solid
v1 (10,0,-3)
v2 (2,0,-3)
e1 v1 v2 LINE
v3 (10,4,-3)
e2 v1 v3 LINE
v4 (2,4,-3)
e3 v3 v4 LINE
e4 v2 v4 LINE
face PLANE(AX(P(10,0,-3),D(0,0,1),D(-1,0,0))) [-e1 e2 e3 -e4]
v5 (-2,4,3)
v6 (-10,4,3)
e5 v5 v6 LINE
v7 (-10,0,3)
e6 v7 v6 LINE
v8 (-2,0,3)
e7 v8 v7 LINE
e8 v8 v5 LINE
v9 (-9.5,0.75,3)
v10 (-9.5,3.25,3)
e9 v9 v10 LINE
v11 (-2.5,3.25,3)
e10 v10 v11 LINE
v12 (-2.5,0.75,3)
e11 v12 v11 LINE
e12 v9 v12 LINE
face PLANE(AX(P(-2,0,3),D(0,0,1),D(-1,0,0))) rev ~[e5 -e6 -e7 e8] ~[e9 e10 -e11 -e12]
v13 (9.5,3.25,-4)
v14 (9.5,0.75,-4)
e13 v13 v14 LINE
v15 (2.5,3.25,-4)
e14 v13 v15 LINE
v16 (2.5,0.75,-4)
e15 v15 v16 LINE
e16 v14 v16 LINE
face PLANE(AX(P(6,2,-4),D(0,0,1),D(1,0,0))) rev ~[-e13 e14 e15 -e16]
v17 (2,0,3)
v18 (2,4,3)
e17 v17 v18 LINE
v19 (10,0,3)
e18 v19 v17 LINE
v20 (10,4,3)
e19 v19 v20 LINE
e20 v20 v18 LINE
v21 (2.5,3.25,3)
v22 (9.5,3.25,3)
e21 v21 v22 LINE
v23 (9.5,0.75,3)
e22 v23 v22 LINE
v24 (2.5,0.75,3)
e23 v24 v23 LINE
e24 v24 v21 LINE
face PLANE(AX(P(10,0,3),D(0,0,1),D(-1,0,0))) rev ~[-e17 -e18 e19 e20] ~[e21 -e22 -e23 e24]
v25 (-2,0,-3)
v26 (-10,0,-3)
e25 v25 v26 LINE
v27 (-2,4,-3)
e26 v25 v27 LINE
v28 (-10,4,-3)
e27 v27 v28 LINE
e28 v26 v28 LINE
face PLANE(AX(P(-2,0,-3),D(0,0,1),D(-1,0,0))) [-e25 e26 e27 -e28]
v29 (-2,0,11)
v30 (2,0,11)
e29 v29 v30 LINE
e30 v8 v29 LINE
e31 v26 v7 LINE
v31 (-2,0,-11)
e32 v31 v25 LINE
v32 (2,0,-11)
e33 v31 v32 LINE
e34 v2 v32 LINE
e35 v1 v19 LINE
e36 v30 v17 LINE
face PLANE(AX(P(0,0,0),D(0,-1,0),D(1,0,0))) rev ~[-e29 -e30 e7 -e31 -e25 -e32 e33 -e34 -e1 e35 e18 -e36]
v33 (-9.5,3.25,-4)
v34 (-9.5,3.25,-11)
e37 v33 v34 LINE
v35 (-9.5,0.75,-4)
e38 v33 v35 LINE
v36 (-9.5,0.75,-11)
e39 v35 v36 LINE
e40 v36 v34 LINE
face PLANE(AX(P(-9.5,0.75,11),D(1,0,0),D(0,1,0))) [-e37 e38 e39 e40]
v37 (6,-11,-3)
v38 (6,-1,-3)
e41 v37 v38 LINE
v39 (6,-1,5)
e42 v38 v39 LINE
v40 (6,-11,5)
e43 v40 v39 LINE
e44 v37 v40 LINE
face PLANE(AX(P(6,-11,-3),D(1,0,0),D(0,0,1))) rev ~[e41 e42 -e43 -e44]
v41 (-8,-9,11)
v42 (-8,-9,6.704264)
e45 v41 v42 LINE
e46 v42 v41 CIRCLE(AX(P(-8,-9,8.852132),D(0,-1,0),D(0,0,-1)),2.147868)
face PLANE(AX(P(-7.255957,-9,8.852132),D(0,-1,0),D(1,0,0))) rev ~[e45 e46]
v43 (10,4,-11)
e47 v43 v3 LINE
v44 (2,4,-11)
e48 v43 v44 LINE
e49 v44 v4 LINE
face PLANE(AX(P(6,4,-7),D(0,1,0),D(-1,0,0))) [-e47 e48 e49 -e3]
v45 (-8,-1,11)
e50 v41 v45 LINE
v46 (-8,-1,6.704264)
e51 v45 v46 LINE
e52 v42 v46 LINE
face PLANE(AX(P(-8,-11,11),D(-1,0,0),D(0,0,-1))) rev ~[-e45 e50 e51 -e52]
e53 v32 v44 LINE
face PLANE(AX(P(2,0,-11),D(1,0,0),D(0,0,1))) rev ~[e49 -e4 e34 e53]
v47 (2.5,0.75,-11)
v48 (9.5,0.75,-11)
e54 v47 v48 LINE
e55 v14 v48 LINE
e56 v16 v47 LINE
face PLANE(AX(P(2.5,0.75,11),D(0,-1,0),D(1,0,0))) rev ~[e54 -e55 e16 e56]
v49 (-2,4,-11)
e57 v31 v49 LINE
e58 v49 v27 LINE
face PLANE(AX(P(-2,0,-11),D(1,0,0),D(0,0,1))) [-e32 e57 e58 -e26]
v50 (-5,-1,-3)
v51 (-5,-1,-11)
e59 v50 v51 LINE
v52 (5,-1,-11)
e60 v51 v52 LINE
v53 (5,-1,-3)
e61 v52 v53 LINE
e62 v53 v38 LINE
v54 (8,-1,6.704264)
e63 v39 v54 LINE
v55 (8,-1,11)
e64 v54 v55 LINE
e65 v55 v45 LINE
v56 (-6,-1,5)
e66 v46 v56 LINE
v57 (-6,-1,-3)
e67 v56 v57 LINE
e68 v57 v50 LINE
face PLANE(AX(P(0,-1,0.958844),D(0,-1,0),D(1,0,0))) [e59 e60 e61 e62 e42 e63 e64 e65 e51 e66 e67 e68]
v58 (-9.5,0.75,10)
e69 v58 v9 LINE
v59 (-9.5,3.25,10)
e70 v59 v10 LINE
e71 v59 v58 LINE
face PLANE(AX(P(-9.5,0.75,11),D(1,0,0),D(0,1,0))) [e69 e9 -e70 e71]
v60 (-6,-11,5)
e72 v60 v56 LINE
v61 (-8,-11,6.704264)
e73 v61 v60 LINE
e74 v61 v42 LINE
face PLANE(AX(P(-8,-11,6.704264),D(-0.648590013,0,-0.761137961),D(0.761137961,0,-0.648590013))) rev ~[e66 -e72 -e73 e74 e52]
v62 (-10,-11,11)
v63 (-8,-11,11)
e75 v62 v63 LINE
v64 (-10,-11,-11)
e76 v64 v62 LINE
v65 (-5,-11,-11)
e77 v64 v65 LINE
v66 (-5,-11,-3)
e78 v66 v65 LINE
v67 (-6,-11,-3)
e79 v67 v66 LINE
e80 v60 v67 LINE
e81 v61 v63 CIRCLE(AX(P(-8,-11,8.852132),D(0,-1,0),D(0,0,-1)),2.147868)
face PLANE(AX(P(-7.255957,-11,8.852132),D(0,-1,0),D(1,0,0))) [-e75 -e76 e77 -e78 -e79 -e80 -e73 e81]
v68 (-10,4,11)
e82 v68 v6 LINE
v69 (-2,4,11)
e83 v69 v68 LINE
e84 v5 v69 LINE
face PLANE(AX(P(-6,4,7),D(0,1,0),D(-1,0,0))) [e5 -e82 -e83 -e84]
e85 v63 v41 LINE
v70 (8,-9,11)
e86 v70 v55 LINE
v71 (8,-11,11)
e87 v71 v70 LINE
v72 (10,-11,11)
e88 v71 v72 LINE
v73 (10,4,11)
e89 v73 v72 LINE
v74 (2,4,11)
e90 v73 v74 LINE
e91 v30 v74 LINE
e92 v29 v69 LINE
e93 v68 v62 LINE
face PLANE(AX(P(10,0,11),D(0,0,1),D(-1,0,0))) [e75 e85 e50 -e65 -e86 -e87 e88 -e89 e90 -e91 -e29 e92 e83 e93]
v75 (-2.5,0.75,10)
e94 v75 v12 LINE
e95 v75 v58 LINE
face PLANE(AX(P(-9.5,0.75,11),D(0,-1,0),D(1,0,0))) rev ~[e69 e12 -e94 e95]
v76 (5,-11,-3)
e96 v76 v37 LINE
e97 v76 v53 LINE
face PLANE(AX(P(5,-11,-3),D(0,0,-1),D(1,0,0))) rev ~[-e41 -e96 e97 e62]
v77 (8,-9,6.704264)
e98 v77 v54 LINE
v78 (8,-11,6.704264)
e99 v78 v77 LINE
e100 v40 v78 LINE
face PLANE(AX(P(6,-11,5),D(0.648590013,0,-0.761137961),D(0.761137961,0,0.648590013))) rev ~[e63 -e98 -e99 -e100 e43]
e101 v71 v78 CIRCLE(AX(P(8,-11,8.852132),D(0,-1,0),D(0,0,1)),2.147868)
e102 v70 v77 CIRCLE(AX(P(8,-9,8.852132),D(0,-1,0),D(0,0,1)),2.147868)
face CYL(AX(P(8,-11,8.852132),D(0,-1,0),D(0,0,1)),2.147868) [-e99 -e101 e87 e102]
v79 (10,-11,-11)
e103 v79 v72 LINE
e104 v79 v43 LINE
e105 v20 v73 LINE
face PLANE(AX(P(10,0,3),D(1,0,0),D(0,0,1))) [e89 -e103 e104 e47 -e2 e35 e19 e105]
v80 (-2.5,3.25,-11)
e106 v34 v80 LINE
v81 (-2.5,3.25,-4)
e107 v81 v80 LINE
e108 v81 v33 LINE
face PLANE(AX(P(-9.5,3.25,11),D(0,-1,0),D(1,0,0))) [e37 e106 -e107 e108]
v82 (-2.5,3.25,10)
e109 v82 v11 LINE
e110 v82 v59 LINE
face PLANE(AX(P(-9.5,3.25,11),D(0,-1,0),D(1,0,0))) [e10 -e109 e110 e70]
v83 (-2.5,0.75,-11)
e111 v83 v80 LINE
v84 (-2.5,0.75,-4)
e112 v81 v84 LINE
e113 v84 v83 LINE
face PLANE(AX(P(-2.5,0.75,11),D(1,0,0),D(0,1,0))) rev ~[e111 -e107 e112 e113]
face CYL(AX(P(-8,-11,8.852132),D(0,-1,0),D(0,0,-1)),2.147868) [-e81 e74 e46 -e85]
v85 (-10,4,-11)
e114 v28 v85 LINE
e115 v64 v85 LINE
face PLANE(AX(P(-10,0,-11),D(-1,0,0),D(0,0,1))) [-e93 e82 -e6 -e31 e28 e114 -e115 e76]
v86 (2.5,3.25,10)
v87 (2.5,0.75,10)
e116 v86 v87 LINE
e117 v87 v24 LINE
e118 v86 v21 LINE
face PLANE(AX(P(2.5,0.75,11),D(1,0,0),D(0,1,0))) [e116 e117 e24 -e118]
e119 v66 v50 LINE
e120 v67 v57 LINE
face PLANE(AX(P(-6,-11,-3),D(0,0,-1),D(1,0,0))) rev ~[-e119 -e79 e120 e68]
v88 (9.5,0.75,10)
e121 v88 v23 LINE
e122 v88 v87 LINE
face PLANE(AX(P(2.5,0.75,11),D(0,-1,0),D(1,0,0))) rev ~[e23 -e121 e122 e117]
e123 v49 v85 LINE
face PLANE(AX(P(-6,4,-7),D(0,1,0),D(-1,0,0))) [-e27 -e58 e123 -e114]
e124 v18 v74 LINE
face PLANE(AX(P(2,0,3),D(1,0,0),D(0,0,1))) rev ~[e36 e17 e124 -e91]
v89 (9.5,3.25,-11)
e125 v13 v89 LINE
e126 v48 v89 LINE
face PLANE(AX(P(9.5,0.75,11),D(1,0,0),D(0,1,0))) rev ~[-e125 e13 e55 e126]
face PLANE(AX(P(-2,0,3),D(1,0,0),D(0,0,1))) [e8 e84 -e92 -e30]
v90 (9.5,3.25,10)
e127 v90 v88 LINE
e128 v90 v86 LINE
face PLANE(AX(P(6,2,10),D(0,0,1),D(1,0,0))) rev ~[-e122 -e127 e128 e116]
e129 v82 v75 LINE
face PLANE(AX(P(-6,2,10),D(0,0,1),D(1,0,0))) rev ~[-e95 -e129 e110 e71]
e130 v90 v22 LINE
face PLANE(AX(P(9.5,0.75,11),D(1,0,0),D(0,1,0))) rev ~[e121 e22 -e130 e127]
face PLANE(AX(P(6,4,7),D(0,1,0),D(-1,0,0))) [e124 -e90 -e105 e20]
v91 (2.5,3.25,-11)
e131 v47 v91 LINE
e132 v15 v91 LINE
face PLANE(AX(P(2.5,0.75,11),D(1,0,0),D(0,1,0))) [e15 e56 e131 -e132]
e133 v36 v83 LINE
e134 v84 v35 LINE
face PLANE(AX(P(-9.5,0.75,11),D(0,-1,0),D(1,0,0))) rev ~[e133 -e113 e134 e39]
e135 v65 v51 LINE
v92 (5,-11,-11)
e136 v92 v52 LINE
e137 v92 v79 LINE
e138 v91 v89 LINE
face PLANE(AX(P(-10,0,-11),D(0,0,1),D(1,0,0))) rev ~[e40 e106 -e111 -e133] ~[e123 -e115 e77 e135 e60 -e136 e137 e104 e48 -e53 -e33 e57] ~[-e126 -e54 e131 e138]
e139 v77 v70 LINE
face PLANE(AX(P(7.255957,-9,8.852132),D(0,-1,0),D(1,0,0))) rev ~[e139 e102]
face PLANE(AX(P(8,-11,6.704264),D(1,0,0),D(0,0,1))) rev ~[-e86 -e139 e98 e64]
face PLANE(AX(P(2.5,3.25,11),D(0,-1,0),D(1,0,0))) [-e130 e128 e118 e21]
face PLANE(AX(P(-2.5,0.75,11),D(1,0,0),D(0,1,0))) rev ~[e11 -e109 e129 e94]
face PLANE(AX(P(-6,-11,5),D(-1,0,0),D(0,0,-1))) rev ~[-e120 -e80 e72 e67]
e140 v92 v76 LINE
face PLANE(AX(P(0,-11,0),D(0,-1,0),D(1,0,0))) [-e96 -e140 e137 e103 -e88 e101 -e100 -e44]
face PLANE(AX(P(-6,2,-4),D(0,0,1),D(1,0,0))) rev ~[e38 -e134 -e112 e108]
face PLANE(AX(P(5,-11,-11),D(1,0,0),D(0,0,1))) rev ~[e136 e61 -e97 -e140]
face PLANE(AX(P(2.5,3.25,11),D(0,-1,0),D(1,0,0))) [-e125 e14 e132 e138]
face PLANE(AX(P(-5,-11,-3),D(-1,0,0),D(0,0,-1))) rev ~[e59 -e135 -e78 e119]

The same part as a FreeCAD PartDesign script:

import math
import FreeCAD as App
import Part
import Sketcher

V = App.Vector


def add_polygon(sketch, points):
    """Adds a closed chain of lines whose ends are joined by coincident constraints."""
    first, n = sketch.GeometryCount, len(points)
    for a, b in zip(points, points[1:] + points[:1]):
        sketch.addGeometry(Part.LineSegment(App.Vector(*a, 0), App.Vector(*b, 0)), False)
    for i in range(n):
        sketch.addConstraint(Sketcher.Constraint("Coincident", first + i, 2, first + (i + 1) % n, 1))

doc = App.newDocument("Part")
body = doc.addObject("PartDesign::Body", "Body")

# Sketch on XZ plane
sketch1 = body.newObject("Sketcher::SketchObject", "Sketch")
sketch1.AttachmentSupport = (doc.getObject("XZ_Plane"), [""])
sketch1.MapMode = "FlatFace"
add_polygon(sketch1, [(-10, 11), (-10, -11), (10, -11), (10, 11)])  # lines 0-3
sketch1.addConstraint(Sketcher.Constraint("Vertical", 0))
sketch1.addConstraint(Sketcher.Constraint("Horizontal", 1))
sketch1.addConstraint(Sketcher.Constraint("Vertical", 2))
sketch1.addConstraint(Sketcher.Constraint("Horizontal", 3))
sketch1.addConstraint(Sketcher.Constraint("Symmetric", 0, 2, 2, 2, -1, 1))
sketch1.addConstraint(Sketcher.Constraint("DistanceX", 1, 1, 1, 2, 20.0))
sketch1.addConstraint(Sketcher.Constraint("DistanceY", 0, 2, 0, 1, 22.0))
pad1 = body.newObject("PartDesign::Pad", "Pad")
pad1.Profile = sketch1
pad1.Length = 11

# Sketch on XZ plane
sketch2 = body.newObject("Sketcher::SketchObject", "Sketch001")
sketch2.AttachmentSupport = (doc.getObject("XZ_Plane"), [""])
sketch2.MapMode = "FlatFace"
sketch2.AttachmentOffset = App.Placement(V(0, 0, 11), App.Rotation())
add_polygon(sketch2, [(8, 6.704264), (8, 11), (-8, 11), (-8, 6.704264), (-6, 5), (-6, -3), (-5, -3), (-5, -11), (5, -11), (5, -3), (6, -3), (6, 5)])  # lines 0-11
sketch2.addConstraint(Sketcher.Constraint("Vertical", 0))
sketch2.addConstraint(Sketcher.Constraint("Horizontal", 1))
sketch2.addConstraint(Sketcher.Constraint("Vertical", 2))
sketch2.addConstraint(Sketcher.Constraint("Vertical", 4))
sketch2.addConstraint(Sketcher.Constraint("Horizontal", 5))
sketch2.addConstraint(Sketcher.Constraint("Vertical", 6))
sketch2.addConstraint(Sketcher.Constraint("Horizontal", 7))
sketch2.addConstraint(Sketcher.Constraint("Vertical", 8))
sketch2.addConstraint(Sketcher.Constraint("Horizontal", 9))
sketch2.addConstraint(Sketcher.Constraint("Vertical", 10))
sketch2.addConstraint(Sketcher.Constraint("Symmetric", 5, 2, 8, 2, -2))
sketch2.addConstraint(Sketcher.Constraint("Symmetric", 3, 2, 10, 2, -2))
sketch2.addConstraint(Sketcher.Constraint("Symmetric", 2, 2, 11, 2, -2))
sketch2.addConstraint(Sketcher.Constraint("Equal", 4, 6))
sketch2.addConstraint(Sketcher.Constraint("DistanceX", 1, 2, 1, 1, 16.0))
sketch2.addConstraint(Sketcher.Constraint("DistanceX", 5, 1, 5, 2, 1.0))
sketch2.addConstraint(Sketcher.Constraint("DistanceX", 7, 1, 7, 2, 10.0))
sketch2.addConstraint(Sketcher.Constraint("DistanceY", 4, 2, 4, 1, 8.0))
sketch2.addConstraint(Sketcher.Constraint("DistanceY", -1, 1, 0, 2, 11.0))
sketch2.addConstraint(Sketcher.Constraint("DistanceY", -1, 1, 3, 2, 5.0))
sketch2.addConstraint(Sketcher.Constraint("DistanceY", 0, 1, 0, 2, 4.295736))
pocket1 = body.newObject("PartDesign::Pocket", "Pocket")
pocket1.Profile = sketch2
pocket1.Length = 10

# Sketch on XZ plane
sketch3 = body.newObject("Sketcher::SketchObject", "Sketch002")
sketch3.AttachmentSupport = (doc.getObject("XZ_Plane"), [""])
sketch3.MapMode = "FlatFace"
sketch3.AttachmentOffset = App.Placement(V(0, 0, 11), App.Rotation())
sketch3.addGeometry(Part.LineSegment(V(-8, 11, 0), V(-8, 6.704264, 0)), False)
sketch3.addGeometry(Part.ArcOfCircle(Part.Circle(V(-8, 8.852132, 0), V(0, 0, 1), 2.147868), math.radians(-90), math.radians(90)), False)
sketch3.addGeometry(Part.ArcOfCircle(Part.Circle(V(8, 8.852132, 0), V(0, 0, 1), 2.147868), math.radians(90), math.radians(270)), False)
sketch3.addGeometry(Part.LineSegment(V(8, 6.704264, 0), V(8, 11, 0)), False)
sketch3.addConstraint(Sketcher.Constraint("Coincident", 0, 1, 1, 2))
sketch3.addConstraint(Sketcher.Constraint("Coincident", 1, 1, 0, 2))
sketch3.addConstraint(Sketcher.Constraint("Coincident", 2, 1, 3, 2))
sketch3.addConstraint(Sketcher.Constraint("Coincident", 3, 1, 2, 2))
sketch3.addConstraint(Sketcher.Constraint("Vertical", 0))
sketch3.addConstraint(Sketcher.Constraint("Vertical", 3))
sketch3.addConstraint(Sketcher.Constraint("Equal", 1, 2))
sketch3.addConstraint(Sketcher.Constraint("Symmetric", 1, 3, 2, 3, -2))
sketch3.addConstraint(Sketcher.Constraint("Vertical", 1, 3, 0, 1))
sketch3.addConstraint(Sketcher.Constraint("DistanceX", 1, 3, -1, 1, 8.0))
sketch3.addConstraint(Sketcher.Constraint("DistanceY", -1, 1, 0, 1, 11.0))
sketch3.addConstraint(Sketcher.Constraint("DistanceX", -1, 1, 2, 1, 8.0))
sketch3.addConstraint(Sketcher.Constraint("Radius", 1, 2.147868))
pad2 = body.newObject("PartDesign::Pad", "Pad001")
pad2.Profile = sketch3
pad2.Length = 2
pad2.Reversed = True

# Sketch on XZ plane
sketch4 = body.newObject("Sketcher::SketchObject", "Sketch003")
sketch4.AttachmentSupport = (doc.getObject("XZ_Plane"), [""])
sketch4.MapMode = "FlatFace"
add_polygon(sketch4, [(10, 11), (10, 3), (2, 3), (2, 11)])  # lines 0-3
add_polygon(sketch4, [(-2, 11), (-2, 3), (-10, 3), (-10, 11)])  # lines 4-7
add_polygon(sketch4, [(10, -3), (10, -11), (2, -11), (2, -3)])  # lines 8-11
add_polygon(sketch4, [(-2, -3), (-2, -11), (-10, -11), (-10, -3)])  # lines 12-15
sketch4.addConstraint(Sketcher.Constraint("Vertical", 0))
sketch4.addConstraint(Sketcher.Constraint("Horizontal", 1))
sketch4.addConstraint(Sketcher.Constraint("Vertical", 2))
sketch4.addConstraint(Sketcher.Constraint("Horizontal", 3))
sketch4.addConstraint(Sketcher.Constraint("Vertical", 4))
sketch4.addConstraint(Sketcher.Constraint("Horizontal", 5))
sketch4.addConstraint(Sketcher.Constraint("Vertical", 6))
sketch4.addConstraint(Sketcher.Constraint("Horizontal", 7))
sketch4.addConstraint(Sketcher.Constraint("Vertical", 8))
sketch4.addConstraint(Sketcher.Constraint("Horizontal", 9))
sketch4.addConstraint(Sketcher.Constraint("Vertical", 10))
sketch4.addConstraint(Sketcher.Constraint("Horizontal", 11))
sketch4.addConstraint(Sketcher.Constraint("Vertical", 12))
sketch4.addConstraint(Sketcher.Constraint("Horizontal", 13))
sketch4.addConstraint(Sketcher.Constraint("Vertical", 14))
sketch4.addConstraint(Sketcher.Constraint("Horizontal", 15))
sketch4.addConstraint(Sketcher.Constraint("Symmetric", 6, 2, 8, 2, -1, 1))
sketch4.addConstraint(Sketcher.Constraint("Symmetric", 4, 2, 10, 2, -1, 1))
sketch4.addConstraint(Sketcher.Constraint("Symmetric", 2, 2, 12, 2, -1, 1))
sketch4.addConstraint(Sketcher.Constraint("Symmetric", 0, 2, 14, 2, -1, 1))
sketch4.addConstraint(Sketcher.Constraint("Symmetric", 1, 2, 4, 2, -2))
sketch4.addConstraint(Sketcher.Constraint("Symmetric", 3, 2, 6, 2, -2))
sketch4.addConstraint(Sketcher.Constraint("Equal", 15, 0))
sketch4.addConstraint(Sketcher.Constraint("DistanceX", 1, 2, 1, 1, 8.0))
sketch4.addConstraint(Sketcher.Constraint("DistanceX", -1, 1, 0, 2, 10.0))
sketch4.addConstraint(Sketcher.Constraint("DistanceY", -1, 1, 0, 2, 3.0))
pad3 = body.newObject("PartDesign::Pad", "Pad002")
pad3.Profile = sketch4
pad3.Length = 4
pad3.Reversed = True

# Sketch on XY plane
sketch5 = body.newObject("Sketcher::SketchObject", "Sketch004")
sketch5.AttachmentSupport = (doc.getObject("XY_Plane"), [""])
sketch5.MapMode = "FlatFace"
sketch5.AttachmentOffset = App.Placement(V(0, 0, 11), App.Rotation())
add_polygon(sketch5, [(-9.5, 3.25), (-9.5, 0.75), (-2.5, 0.75), (-2.5, 3.25)])  # lines 0-3
add_polygon(sketch5, [(2.5, 3.25), (2.5, 0.75), (9.5, 0.75), (9.5, 3.25)])  # lines 4-7
sketch5.addConstraint(Sketcher.Constraint("Vertical", 0))
sketch5.addConstraint(Sketcher.Constraint("Horizontal", 1))
sketch5.addConstraint(Sketcher.Constraint("Vertical", 2))
sketch5.addConstraint(Sketcher.Constraint("Horizontal", 3))
sketch5.addConstraint(Sketcher.Constraint("Vertical", 4))
sketch5.addConstraint(Sketcher.Constraint("Horizontal", 5))
sketch5.addConstraint(Sketcher.Constraint("Vertical", 6))
sketch5.addConstraint(Sketcher.Constraint("Horizontal", 7))
sketch5.addConstraint(Sketcher.Constraint("Symmetric", 1, 2, 4, 2, -2))
sketch5.addConstraint(Sketcher.Constraint("Symmetric", 3, 2, 6, 2, -2))
sketch5.addConstraint(Sketcher.Constraint("DistanceX", 1, 1, 1, 2, 7.0))
sketch5.addConstraint(Sketcher.Constraint("DistanceY", 0, 2, 0, 1, 2.5))
sketch5.addConstraint(Sketcher.Constraint("DistanceX", 1, 2, 4, 2, 5.0))
sketch5.addConstraint(Sketcher.Constraint("DistanceY", -1, 1, 0, 2, 0.75))
pocket2 = body.newObject("PartDesign::Pocket", "Pocket001")
pocket2.Profile = sketch5
pocket2.Length = 25

# Sketch on XY plane
sketch6 = body.newObject("Sketcher::SketchObject", "Sketch005")
sketch6.AttachmentSupport = (doc.getObject("XY_Plane"), [""])
sketch6.MapMode = "FlatFace"
sketch6.AttachmentOffset = App.Placement(V(0, 0, -3), App.Rotation())
add_polygon(sketch6, [(2, 4), (2, 0), (10, 0), (10, 4)])  # lines 0-3
add_polygon(sketch6, [(-10, 4), (-10, 0), (-2, 0), (-2, 4)])  # lines 4-7
sketch6.addConstraint(Sketcher.Constraint("Vertical", 0))
sketch6.addConstraint(Sketcher.Constraint("Horizontal", 1))
sketch6.addConstraint(Sketcher.Constraint("Vertical", 2))
sketch6.addConstraint(Sketcher.Constraint("Horizontal", 3))
sketch6.addConstraint(Sketcher.Constraint("Vertical", 4))
sketch6.addConstraint(Sketcher.Constraint("Horizontal", 5))
sketch6.addConstraint(Sketcher.Constraint("Vertical", 6))
sketch6.addConstraint(Sketcher.Constraint("Horizontal", 7))
sketch6.addConstraint(Sketcher.Constraint("Symmetric", 1, 2, 4, 2, -1, 1))
sketch6.addConstraint(Sketcher.Constraint("Symmetric", 0, 2, 5, 2, -2))
sketch6.addConstraint(Sketcher.Constraint("Horizontal", 3, 2, 6, 2))
sketch6.addConstraint(Sketcher.Constraint("DistanceX", 1, 1, 1, 2, 8.0))
sketch6.addConstraint(Sketcher.Constraint("DistanceY", 0, 2, 0, 1, 4.0))
sketch6.addConstraint(Sketcher.Constraint("DistanceX", -1, 1, 0, 2, 2.0))
pad4 = body.newObject("PartDesign::Pad", "Pad003")
pad4.Profile = sketch6
pad4.Length = 1
pad4.Reversed = True

# Sketch on XY plane
sketch7 = body.newObject("Sketcher::SketchObject", "Sketch006")
sketch7.AttachmentSupport = (doc.getObject("XY_Plane"), [""])
sketch7.MapMode = "FlatFace"
sketch7.AttachmentOffset = App.Placement(V(0, 0, 11), App.Rotation())
add_polygon(sketch7, [(2, 4), (2, 0), (10, 0), (10, 4)])  # lines 0-3
add_polygon(sketch7, [(-10, 4), (-10, 0), (-2, 0), (-2, 4)])  # lines 4-7
sketch7.addConstraint(Sketcher.Constraint("Vertical", 0))
sketch7.addConstraint(Sketcher.Constraint("Horizontal", 1))
sketch7.addConstraint(Sketcher.Constraint("Vertical", 2))
sketch7.addConstraint(Sketcher.Constraint("Horizontal", 3))
sketch7.addConstraint(Sketcher.Constraint("Vertical", 4))
sketch7.addConstraint(Sketcher.Constraint("Horizontal", 5))
sketch7.addConstraint(Sketcher.Constraint("Vertical", 6))
sketch7.addConstraint(Sketcher.Constraint("Horizontal", 7))
sketch7.addConstraint(Sketcher.Constraint("Symmetric", 1, 2, 4, 2, -1, 1))
sketch7.addConstraint(Sketcher.Constraint("Symmetric", 0, 2, 5, 2, -2))
sketch7.addConstraint(Sketcher.Constraint("Horizontal", 3, 2, 6, 2))
sketch7.addConstraint(Sketcher.Constraint("DistanceX", 1, 1, 1, 2, 8.0))
sketch7.addConstraint(Sketcher.Constraint("DistanceY", 0, 2, 0, 1, 4.0))
sketch7.addConstraint(Sketcher.Constraint("DistanceX", -1, 1, 0, 2, 2.0))
pad5 = body.newObject("PartDesign::Pad", "Pad004")
pad5.Profile = sketch7
pad5.Length = 1
pad5.Reversed = True

doc.recompute()
